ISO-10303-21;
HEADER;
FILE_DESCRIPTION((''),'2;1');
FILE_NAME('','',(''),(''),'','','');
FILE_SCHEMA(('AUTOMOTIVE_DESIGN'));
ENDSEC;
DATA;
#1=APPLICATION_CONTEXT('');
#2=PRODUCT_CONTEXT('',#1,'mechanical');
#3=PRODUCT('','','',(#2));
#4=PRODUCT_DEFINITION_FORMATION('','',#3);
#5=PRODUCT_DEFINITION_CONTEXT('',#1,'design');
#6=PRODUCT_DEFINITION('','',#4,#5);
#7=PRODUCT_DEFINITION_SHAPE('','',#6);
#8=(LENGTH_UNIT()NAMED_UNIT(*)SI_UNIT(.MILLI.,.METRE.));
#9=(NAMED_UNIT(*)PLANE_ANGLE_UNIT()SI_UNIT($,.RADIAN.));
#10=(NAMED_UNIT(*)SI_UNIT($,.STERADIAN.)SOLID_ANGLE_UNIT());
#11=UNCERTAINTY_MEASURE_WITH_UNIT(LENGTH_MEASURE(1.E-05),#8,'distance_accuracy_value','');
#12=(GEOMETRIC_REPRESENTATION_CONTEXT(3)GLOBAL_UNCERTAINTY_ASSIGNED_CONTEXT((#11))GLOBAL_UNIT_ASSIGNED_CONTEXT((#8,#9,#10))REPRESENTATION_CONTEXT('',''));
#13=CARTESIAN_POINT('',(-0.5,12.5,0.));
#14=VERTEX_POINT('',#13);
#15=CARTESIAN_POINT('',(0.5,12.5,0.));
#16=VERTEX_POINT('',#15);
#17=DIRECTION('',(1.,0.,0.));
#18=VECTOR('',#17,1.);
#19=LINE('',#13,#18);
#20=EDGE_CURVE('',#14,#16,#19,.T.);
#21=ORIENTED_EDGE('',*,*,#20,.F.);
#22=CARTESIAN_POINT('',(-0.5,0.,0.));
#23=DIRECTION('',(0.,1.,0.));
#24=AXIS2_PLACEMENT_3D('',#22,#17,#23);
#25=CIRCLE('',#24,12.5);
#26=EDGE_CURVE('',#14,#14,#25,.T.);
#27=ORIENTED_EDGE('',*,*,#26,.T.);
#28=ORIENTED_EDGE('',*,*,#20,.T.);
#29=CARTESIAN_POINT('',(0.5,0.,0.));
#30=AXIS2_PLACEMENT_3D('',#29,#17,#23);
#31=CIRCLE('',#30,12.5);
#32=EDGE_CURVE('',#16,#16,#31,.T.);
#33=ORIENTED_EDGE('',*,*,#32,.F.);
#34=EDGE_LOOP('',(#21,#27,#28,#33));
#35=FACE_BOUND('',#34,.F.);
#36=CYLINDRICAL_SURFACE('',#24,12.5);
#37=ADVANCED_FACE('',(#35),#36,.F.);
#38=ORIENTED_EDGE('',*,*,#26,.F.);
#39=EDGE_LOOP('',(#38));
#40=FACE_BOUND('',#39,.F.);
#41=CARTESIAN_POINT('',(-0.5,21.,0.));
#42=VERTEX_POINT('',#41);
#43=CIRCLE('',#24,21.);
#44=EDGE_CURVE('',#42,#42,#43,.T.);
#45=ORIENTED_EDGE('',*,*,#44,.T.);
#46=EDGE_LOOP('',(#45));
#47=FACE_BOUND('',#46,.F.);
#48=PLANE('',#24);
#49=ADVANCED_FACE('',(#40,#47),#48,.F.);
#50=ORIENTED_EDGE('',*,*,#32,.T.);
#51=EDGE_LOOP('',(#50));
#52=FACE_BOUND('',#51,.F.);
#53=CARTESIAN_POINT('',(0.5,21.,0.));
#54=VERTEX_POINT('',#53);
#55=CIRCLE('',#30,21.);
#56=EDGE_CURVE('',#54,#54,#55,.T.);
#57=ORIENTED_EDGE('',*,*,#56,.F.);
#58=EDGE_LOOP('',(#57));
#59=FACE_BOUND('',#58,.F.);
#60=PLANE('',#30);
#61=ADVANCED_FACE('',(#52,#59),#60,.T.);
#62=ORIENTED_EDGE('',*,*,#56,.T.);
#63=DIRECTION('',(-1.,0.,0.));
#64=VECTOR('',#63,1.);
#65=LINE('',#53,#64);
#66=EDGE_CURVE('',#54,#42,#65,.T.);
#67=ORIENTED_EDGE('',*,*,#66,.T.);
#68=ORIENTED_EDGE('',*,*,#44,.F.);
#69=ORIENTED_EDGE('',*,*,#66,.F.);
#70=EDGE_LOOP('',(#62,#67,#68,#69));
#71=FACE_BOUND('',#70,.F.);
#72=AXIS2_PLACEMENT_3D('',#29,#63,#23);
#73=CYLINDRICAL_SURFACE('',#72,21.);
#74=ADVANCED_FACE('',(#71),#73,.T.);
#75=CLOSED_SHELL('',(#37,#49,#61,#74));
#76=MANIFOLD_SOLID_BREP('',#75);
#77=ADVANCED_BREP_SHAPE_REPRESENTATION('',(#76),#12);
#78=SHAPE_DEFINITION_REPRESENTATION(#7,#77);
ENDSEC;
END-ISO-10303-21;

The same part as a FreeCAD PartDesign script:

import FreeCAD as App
import Part
import Sketcher

V = App.Vector
Q = App.Units.Quantity

doc = App.newDocument("Part")
body = doc.addObject("PartDesign::Body", "Body")

# Sketch on XY plane
sketch1 = doc.addObject("Sketcher::SketchObject", "Sketch")
body.addObject(sketch1)
sketch1.AttachmentSupport = (doc.XY_Plane, [""])
sketch1.MapMode = "FlatFace"
sketch1.addGeometry(Part.LineSegment(V(-0.5, 21, 0), V(-0.5, 12.5, 0)), False)
sketch1.addGeometry(Part.LineSegment(V(-0.5, 12.5, 0), V(0.5, 12.5, 0)), False)
sketch1.addGeometry(Part.LineSegment(V(0.5, 12.5, 0), V(0.5, 21, 0)), False)
sketch1.addGeometry(Part.LineSegment(V(0.5, 21, 0), V(-0.5, 21, 0)), False)
sketch1.addConstraint(Sketcher.Constraint("Coincident", 0, 2, 1, 1))
sketch1.addConstraint(Sketcher.Constraint("Coincident", 1, 2, 2, 1))
sketch1.addConstraint(Sketcher.Constraint("Coincident", 2, 2, 3, 1))
sketch1.addConstraint(Sketcher.Constraint("Coincident", 3, 2, 0, 1))
sketch1.addConstraint(Sketcher.Constraint("Vertical", 0))
sketch1.addConstraint(Sketcher.Constraint("Horizontal", 1))
sketch1.addConstraint(Sketcher.Constraint("Vertical", 2))
sketch1.addConstraint(Sketcher.Constraint("Horizontal", 3))
sketch1.addConstraint(Sketcher.Constraint("DistanceX", 1, 1, 1, 2, Q("1 mm")))
sketch1.addConstraint(Sketcher.Constraint("DistanceY", 0, 2, 0, 1, Q("8.5 mm")))
sketch1.addConstraint(Sketcher.Constraint("DistanceY", -1, 1, 2, 2, Q("21 mm")))
sketch1.addConstraint(Sketcher.Constraint("DistanceX", 0, 2, -1, 1, Q("0.5 mm")))
revolution = doc.addObject("PartDesign::Revolution", "Revolution")
body.addObject(revolution)
revolution.Profile = sketch1
revolution.ReferenceAxis = (sketch1, ["H_Axis"])
revolution.Angle = 360

doc.recompute()
